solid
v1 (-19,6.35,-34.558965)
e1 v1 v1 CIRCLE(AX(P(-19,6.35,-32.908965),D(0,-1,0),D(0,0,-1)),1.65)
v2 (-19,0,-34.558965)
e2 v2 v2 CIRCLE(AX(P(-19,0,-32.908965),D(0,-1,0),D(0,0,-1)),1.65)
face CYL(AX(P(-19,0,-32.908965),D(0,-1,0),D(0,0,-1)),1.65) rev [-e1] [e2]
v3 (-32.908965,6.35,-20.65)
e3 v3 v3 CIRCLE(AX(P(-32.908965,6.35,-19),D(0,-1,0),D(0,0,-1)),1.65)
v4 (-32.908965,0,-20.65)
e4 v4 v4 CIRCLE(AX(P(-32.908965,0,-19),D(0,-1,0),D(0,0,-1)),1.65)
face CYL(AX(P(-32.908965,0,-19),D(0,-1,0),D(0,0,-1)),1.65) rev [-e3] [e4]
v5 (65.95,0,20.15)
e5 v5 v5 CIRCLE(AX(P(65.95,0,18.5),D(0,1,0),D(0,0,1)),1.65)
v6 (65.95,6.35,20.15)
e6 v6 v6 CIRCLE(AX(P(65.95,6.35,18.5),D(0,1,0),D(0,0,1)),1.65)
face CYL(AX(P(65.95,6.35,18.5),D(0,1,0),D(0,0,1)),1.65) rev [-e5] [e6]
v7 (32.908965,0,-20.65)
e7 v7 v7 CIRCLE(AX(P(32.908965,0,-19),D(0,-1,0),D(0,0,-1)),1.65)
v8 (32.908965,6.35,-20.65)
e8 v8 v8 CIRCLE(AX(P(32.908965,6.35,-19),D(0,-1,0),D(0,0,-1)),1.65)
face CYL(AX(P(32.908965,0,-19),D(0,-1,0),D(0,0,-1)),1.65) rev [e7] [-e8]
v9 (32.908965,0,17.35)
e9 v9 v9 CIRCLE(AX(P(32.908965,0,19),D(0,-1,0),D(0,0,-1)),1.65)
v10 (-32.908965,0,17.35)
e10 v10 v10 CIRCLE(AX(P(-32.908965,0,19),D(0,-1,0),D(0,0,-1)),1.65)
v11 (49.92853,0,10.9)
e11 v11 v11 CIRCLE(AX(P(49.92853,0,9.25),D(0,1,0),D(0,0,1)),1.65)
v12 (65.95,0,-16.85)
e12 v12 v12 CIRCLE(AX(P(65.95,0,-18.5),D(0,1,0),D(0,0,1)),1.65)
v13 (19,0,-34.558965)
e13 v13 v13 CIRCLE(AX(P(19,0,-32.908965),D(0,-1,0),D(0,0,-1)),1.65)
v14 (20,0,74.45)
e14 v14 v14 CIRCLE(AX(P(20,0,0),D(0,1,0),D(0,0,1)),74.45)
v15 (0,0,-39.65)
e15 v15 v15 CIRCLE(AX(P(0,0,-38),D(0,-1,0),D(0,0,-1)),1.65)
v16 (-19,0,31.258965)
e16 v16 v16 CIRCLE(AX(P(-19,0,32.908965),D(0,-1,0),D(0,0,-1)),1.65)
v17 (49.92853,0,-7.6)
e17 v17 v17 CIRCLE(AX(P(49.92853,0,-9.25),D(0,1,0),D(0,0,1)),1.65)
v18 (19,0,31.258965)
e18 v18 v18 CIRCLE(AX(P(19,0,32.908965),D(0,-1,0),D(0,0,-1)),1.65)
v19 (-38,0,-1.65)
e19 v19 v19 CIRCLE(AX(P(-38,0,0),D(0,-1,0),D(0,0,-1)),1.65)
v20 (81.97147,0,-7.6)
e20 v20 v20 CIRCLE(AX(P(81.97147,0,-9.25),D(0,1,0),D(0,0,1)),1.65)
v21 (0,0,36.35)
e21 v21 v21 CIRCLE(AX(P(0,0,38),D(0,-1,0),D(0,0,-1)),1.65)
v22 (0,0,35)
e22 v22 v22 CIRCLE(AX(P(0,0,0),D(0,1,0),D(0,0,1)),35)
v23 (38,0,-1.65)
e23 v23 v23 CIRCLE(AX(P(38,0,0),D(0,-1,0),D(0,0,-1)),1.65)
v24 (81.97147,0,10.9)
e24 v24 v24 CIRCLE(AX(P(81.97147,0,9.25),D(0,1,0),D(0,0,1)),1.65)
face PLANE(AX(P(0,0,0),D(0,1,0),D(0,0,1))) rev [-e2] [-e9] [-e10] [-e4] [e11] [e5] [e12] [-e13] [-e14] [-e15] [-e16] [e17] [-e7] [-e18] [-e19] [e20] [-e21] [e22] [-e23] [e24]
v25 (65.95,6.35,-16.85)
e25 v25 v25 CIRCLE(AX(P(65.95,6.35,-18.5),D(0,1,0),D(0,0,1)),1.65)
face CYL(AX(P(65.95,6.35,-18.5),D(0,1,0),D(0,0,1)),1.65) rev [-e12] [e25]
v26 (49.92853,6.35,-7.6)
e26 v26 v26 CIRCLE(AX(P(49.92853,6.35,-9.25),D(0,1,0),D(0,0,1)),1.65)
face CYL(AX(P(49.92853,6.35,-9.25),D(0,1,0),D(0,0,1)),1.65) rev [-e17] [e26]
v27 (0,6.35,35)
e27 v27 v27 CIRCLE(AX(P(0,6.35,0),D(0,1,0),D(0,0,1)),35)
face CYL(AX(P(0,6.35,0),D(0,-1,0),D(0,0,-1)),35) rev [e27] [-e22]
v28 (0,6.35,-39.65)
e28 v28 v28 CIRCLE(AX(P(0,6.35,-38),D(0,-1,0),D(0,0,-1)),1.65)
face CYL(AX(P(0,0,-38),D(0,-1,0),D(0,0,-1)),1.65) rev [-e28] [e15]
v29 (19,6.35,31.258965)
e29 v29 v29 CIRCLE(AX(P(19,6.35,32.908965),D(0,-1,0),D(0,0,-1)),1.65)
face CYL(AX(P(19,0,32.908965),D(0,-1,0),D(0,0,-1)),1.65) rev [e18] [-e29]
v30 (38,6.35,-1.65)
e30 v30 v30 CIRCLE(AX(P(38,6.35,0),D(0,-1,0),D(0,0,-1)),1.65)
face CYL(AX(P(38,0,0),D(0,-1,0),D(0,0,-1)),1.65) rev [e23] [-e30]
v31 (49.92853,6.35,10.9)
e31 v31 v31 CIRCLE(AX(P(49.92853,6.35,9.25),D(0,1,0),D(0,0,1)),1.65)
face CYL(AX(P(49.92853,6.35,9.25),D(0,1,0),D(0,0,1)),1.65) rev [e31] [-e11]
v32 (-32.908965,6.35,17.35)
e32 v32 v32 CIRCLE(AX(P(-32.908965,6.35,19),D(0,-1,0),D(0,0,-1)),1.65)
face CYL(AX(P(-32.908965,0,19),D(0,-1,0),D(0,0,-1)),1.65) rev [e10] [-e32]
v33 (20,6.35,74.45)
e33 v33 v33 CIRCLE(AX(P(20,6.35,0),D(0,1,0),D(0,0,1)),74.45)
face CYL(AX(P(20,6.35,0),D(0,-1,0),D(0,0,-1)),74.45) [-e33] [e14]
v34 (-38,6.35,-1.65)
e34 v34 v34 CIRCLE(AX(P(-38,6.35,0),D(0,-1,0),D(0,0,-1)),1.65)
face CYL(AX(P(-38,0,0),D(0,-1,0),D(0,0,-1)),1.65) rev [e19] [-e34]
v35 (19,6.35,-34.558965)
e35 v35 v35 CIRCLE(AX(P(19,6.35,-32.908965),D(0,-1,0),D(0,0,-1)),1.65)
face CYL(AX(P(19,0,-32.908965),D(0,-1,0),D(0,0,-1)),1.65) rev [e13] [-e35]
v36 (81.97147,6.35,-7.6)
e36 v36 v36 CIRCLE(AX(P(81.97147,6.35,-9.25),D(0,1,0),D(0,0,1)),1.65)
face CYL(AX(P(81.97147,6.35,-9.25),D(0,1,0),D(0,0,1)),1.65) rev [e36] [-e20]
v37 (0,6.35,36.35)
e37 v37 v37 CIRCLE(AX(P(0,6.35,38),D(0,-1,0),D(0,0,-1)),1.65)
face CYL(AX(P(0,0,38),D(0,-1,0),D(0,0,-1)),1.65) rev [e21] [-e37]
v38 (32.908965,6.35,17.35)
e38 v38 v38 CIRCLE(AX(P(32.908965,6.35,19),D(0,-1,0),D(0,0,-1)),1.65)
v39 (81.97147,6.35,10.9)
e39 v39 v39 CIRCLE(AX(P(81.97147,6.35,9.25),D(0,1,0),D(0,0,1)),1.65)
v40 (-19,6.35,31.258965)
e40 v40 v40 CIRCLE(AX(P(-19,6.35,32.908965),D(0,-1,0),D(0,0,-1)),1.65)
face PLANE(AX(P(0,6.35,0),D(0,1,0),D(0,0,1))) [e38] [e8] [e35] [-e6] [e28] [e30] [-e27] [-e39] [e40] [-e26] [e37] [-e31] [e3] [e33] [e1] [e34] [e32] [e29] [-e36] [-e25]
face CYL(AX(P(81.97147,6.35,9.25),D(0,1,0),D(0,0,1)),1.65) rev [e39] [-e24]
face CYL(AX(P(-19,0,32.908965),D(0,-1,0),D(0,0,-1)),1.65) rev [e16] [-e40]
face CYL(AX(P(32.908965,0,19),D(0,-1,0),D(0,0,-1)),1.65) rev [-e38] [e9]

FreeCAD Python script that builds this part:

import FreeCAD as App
import Part
import Sketcher
from FreeCAD import Vector
Q = App.Units.Quantity

doc = App.newDocument("Part")
body = doc.addObject("PartDesign::Body", "Body")

# Sketch on XZ plane
sketch1 = doc.addObject("Sketcher::SketchObject", "Sketch")
body.addObject(sketch1)
sketch1.AttachmentSupport = (doc.XZ_Plane, [""])
sketch1.MapMode = "FlatFace"
sketch1.addGeometry([
    Part.Circle(Vector(20, 0, 0), Vector(0, 0, 1), 74),
    Part.Circle(Vector(0, 0, 0), Vector(0, 0, 1), 35),
], False)
sketch1.addConstraint([
    Sketcher.Constraint("Coincident", 1, 3, -1, 1),
    Sketcher.Constraint("PointOnObject", 0, 3, -1),
    Sketcher.Constraint("Diameter", 1, Q("70 mm")),
    Sketcher.Constraint("Diameter", 0, Q("148.9 mm")),
    Sketcher.Constraint("DistanceX", -1, 1, 0, 3, Q("20 mm")),
])
pad1 = doc.addObject("PartDesign::Pad", "Pad")
body.addObject(pad1)
pad1.Profile = sketch1
pad1.Length = 6.35
pad1.Reversed = True

# Sketch on XZ plane
sketch2 = doc.addObject("Sketcher::SketchObject", "Sketch001")
body.addObject(sketch2)
sketch2.AttachmentSupport = (doc.XZ_Plane, [""])
sketch2.MapMode = "FlatFace"
sketch2.addGeometry([
    Part.Circle(Vector(0, -38, 0), Vector(0, 0, 1), 1.6),  # 0
    Part.Circle(Vector(-19, -32.9, 0), Vector(0, 0, 1), 1.6),  # 1
    Part.Circle(Vector(-32.9, -19, 0), Vector(0, 0, 1), 1.6),  # 2
    Part.Circle(Vector(-38, 0, 0), Vector(0, 0, 1), 1.6),  # 3
    Part.Circle(Vector(-32.9, 19, 0), Vector(0, 0, 1), 1.6),  # 4
    Part.Circle(Vector(-19, 32.9, 0), Vector(0, 0, 1), 1.6),  # 5
    Part.Circle(Vector(0, 38, 0), Vector(0, 0, 1), 1.6),  # 6
    Part.Circle(Vector(19, 32.9, 0), Vector(0, 0, 1), 1.6),  # 7
    Part.Circle(Vector(32.9, 19, 0), Vector(0, 0, 1), 1.6),  # 8
    Part.Circle(Vector(38, 0, 0), Vector(0, 0, 1), 1.6),  # 9
    Part.Circle(Vector(19, -32.9, 0), Vector(0, 0, 1), 1.6),  # 10
    Part.Circle(Vector(32.9, -19, 0), Vector(0, 0, 1), 1.6),  # 11
], False)
sketch2.addConstraint([
    Sketcher.Constraint("Equal", 0, 1),
    Sketcher.Constraint("Equal", 1, 2),
    Sketcher.Constraint("Equal", 2, 3),
    Sketcher.Constraint("Equal", 3, 4),
    Sketcher.Constraint("Equal", 4, 5),
    Sketcher.Constraint("Equal", 5, 6),
    Sketcher.Constraint("Equal", 6, 7),
    Sketcher.Constraint("Equal", 7, 8),
    Sketcher.Constraint("Equal", 8, 9),
    Sketcher.Constraint("Equal", 9, 10),
    Sketcher.Constraint("Equal", 10, 11),
    Sketcher.Constraint("Symmetric", 0, 3, 6, 3, -1, 1),
    Sketcher.Constraint("Symmetric", 1, 3, 7, 3, -1, 1),
    Sketcher.Constraint("Symmetric", 2, 3, 8, 3, -1, 1),
    Sketcher.Constraint("Symmetric", 3, 3, 9, 3, -1, 1),
    Sketcher.Constraint("Symmetric", 5, 3, 10, 3, -1, 1),
    Sketcher.Constraint("Symmetric", 4, 3, 11, 3, -1, 1),
    Sketcher.Constraint("Symmetric", 5, 3, 7, 3, -2),
    Sketcher.Constraint("Symmetric", 4, 3, 8, 3, -2),
    Sketcher.Constraint("PointOnObject", 0, 3, -2),
    Sketcher.Constraint("PointOnObject", 3, 3, -1),
    Sketcher.Constraint("Diameter", 0, Q("3.3 mm")),
    Sketcher.Constraint("DistanceY", 0, 3, -1, 1, Q("38 mm")),
    Sketcher.Constraint("DistanceX", 1, 3, -1, 1, Q("19 mm")),
    Sketcher.Constraint("DistanceY", 2, 3, -1, 1, Q("19 mm")),
    Sketcher.Constraint("DistanceX", 3, 3, -1, 1, Q("38 mm")),
    Sketcher.Constraint("DistanceY", 1, 3, 5, 3, Q("65.817931 mm")),
    Sketcher.Constraint("DistanceX", 4, 3, 8, 3, Q("65.817931 mm")),
])
doc.recompute()
hole = doc.addObject("PartDesign::Hole", "Hole")
body.addObject(hole)
hole.Profile = sketch2
hole.ThreadType = "None"
hole.Diameter = 3.3
hole.DepthType = "ThroughAll"

# Sketch on XZ plane
sketch3 = doc.addObject("Sketcher::SketchObject", "Sketch002")
body.addObject(sketch3)
sketch3.AttachmentSupport = (doc.XZ_Plane, [""])
sketch3.MapMode = "FlatFace"
sketch3.AttachmentOffset = App.Placement(Vector(0, 0, -6.35), App.Rotation())
sketch3.addGeometry([
    Part.Circle(Vector(66, -18.5, 0), Vector(0, 0, 1), 1.6),  # 0
    Part.Circle(Vector(82, -9.2, 0), Vector(0, 0, 1), 1.6),  # 1
    Part.Circle(Vector(82, 9.2, 0), Vector(0, 0, 1), 1.6),  # 2
    Part.Circle(Vector(66, 18.5, 0), Vector(0, 0, 1), 1.6),  # 3
    Part.Circle(Vector(49.9, 9.2, 0), Vector(0, 0, 1), 1.6),  # 4
    Part.Circle(Vector(49.9, -9.2, 0), Vector(0, 0, 1), 1.6),  # 5
], False)
sketch3.addConstraint([
    Sketcher.Constraint("Equal", 0, 1),
    Sketcher.Constraint("Equal", 1, 2),
    Sketcher.Constraint("Equal", 2, 3),
    Sketcher.Constraint("Equal", 3, 4),
    Sketcher.Constraint("Equal", 4, 5),
    Sketcher.Constraint("Symmetric", 1, 3, 2, 3, -1),
    Sketcher.Constraint("Symmetric", 0, 3, 3, 3, -1),
    Sketcher.Constraint("Symmetric", 4, 3, 5, 3, -1),
    Sketcher.Constraint("Horizontal", 2, 3, 4, 3),
    Sketcher.Constraint("Diameter", 0, Q("3.3 mm")),
    Sketcher.Constraint("DistanceY", 0, 3, 3, 3, Q("37 mm")),
    Sketcher.Constraint("DistanceY", 1, 3, 2, 3, Q("18.5 mm")),
    Sketcher.Constraint("DistanceX", -1, 1, 0, 3, Q("65.95 mm")),
    Sketcher.Constraint("DistanceX", -1, 1, 1, 3, Q("81.97147 mm")),
    Sketcher.Constraint("DistanceX", -1, 1, 4, 3, Q("49.92853 mm")),
])
doc.recompute()
hole2 = doc.addObject("PartDesign::Hole", "Hole001")
body.addObject(hole2)
hole2.Profile = sketch3
hole2.ThreadType = "None"
hole2.Diameter = 3.3
hole2.DepthType = "ThroughAll"
hole2.Reversed = True

doc.recompute()
